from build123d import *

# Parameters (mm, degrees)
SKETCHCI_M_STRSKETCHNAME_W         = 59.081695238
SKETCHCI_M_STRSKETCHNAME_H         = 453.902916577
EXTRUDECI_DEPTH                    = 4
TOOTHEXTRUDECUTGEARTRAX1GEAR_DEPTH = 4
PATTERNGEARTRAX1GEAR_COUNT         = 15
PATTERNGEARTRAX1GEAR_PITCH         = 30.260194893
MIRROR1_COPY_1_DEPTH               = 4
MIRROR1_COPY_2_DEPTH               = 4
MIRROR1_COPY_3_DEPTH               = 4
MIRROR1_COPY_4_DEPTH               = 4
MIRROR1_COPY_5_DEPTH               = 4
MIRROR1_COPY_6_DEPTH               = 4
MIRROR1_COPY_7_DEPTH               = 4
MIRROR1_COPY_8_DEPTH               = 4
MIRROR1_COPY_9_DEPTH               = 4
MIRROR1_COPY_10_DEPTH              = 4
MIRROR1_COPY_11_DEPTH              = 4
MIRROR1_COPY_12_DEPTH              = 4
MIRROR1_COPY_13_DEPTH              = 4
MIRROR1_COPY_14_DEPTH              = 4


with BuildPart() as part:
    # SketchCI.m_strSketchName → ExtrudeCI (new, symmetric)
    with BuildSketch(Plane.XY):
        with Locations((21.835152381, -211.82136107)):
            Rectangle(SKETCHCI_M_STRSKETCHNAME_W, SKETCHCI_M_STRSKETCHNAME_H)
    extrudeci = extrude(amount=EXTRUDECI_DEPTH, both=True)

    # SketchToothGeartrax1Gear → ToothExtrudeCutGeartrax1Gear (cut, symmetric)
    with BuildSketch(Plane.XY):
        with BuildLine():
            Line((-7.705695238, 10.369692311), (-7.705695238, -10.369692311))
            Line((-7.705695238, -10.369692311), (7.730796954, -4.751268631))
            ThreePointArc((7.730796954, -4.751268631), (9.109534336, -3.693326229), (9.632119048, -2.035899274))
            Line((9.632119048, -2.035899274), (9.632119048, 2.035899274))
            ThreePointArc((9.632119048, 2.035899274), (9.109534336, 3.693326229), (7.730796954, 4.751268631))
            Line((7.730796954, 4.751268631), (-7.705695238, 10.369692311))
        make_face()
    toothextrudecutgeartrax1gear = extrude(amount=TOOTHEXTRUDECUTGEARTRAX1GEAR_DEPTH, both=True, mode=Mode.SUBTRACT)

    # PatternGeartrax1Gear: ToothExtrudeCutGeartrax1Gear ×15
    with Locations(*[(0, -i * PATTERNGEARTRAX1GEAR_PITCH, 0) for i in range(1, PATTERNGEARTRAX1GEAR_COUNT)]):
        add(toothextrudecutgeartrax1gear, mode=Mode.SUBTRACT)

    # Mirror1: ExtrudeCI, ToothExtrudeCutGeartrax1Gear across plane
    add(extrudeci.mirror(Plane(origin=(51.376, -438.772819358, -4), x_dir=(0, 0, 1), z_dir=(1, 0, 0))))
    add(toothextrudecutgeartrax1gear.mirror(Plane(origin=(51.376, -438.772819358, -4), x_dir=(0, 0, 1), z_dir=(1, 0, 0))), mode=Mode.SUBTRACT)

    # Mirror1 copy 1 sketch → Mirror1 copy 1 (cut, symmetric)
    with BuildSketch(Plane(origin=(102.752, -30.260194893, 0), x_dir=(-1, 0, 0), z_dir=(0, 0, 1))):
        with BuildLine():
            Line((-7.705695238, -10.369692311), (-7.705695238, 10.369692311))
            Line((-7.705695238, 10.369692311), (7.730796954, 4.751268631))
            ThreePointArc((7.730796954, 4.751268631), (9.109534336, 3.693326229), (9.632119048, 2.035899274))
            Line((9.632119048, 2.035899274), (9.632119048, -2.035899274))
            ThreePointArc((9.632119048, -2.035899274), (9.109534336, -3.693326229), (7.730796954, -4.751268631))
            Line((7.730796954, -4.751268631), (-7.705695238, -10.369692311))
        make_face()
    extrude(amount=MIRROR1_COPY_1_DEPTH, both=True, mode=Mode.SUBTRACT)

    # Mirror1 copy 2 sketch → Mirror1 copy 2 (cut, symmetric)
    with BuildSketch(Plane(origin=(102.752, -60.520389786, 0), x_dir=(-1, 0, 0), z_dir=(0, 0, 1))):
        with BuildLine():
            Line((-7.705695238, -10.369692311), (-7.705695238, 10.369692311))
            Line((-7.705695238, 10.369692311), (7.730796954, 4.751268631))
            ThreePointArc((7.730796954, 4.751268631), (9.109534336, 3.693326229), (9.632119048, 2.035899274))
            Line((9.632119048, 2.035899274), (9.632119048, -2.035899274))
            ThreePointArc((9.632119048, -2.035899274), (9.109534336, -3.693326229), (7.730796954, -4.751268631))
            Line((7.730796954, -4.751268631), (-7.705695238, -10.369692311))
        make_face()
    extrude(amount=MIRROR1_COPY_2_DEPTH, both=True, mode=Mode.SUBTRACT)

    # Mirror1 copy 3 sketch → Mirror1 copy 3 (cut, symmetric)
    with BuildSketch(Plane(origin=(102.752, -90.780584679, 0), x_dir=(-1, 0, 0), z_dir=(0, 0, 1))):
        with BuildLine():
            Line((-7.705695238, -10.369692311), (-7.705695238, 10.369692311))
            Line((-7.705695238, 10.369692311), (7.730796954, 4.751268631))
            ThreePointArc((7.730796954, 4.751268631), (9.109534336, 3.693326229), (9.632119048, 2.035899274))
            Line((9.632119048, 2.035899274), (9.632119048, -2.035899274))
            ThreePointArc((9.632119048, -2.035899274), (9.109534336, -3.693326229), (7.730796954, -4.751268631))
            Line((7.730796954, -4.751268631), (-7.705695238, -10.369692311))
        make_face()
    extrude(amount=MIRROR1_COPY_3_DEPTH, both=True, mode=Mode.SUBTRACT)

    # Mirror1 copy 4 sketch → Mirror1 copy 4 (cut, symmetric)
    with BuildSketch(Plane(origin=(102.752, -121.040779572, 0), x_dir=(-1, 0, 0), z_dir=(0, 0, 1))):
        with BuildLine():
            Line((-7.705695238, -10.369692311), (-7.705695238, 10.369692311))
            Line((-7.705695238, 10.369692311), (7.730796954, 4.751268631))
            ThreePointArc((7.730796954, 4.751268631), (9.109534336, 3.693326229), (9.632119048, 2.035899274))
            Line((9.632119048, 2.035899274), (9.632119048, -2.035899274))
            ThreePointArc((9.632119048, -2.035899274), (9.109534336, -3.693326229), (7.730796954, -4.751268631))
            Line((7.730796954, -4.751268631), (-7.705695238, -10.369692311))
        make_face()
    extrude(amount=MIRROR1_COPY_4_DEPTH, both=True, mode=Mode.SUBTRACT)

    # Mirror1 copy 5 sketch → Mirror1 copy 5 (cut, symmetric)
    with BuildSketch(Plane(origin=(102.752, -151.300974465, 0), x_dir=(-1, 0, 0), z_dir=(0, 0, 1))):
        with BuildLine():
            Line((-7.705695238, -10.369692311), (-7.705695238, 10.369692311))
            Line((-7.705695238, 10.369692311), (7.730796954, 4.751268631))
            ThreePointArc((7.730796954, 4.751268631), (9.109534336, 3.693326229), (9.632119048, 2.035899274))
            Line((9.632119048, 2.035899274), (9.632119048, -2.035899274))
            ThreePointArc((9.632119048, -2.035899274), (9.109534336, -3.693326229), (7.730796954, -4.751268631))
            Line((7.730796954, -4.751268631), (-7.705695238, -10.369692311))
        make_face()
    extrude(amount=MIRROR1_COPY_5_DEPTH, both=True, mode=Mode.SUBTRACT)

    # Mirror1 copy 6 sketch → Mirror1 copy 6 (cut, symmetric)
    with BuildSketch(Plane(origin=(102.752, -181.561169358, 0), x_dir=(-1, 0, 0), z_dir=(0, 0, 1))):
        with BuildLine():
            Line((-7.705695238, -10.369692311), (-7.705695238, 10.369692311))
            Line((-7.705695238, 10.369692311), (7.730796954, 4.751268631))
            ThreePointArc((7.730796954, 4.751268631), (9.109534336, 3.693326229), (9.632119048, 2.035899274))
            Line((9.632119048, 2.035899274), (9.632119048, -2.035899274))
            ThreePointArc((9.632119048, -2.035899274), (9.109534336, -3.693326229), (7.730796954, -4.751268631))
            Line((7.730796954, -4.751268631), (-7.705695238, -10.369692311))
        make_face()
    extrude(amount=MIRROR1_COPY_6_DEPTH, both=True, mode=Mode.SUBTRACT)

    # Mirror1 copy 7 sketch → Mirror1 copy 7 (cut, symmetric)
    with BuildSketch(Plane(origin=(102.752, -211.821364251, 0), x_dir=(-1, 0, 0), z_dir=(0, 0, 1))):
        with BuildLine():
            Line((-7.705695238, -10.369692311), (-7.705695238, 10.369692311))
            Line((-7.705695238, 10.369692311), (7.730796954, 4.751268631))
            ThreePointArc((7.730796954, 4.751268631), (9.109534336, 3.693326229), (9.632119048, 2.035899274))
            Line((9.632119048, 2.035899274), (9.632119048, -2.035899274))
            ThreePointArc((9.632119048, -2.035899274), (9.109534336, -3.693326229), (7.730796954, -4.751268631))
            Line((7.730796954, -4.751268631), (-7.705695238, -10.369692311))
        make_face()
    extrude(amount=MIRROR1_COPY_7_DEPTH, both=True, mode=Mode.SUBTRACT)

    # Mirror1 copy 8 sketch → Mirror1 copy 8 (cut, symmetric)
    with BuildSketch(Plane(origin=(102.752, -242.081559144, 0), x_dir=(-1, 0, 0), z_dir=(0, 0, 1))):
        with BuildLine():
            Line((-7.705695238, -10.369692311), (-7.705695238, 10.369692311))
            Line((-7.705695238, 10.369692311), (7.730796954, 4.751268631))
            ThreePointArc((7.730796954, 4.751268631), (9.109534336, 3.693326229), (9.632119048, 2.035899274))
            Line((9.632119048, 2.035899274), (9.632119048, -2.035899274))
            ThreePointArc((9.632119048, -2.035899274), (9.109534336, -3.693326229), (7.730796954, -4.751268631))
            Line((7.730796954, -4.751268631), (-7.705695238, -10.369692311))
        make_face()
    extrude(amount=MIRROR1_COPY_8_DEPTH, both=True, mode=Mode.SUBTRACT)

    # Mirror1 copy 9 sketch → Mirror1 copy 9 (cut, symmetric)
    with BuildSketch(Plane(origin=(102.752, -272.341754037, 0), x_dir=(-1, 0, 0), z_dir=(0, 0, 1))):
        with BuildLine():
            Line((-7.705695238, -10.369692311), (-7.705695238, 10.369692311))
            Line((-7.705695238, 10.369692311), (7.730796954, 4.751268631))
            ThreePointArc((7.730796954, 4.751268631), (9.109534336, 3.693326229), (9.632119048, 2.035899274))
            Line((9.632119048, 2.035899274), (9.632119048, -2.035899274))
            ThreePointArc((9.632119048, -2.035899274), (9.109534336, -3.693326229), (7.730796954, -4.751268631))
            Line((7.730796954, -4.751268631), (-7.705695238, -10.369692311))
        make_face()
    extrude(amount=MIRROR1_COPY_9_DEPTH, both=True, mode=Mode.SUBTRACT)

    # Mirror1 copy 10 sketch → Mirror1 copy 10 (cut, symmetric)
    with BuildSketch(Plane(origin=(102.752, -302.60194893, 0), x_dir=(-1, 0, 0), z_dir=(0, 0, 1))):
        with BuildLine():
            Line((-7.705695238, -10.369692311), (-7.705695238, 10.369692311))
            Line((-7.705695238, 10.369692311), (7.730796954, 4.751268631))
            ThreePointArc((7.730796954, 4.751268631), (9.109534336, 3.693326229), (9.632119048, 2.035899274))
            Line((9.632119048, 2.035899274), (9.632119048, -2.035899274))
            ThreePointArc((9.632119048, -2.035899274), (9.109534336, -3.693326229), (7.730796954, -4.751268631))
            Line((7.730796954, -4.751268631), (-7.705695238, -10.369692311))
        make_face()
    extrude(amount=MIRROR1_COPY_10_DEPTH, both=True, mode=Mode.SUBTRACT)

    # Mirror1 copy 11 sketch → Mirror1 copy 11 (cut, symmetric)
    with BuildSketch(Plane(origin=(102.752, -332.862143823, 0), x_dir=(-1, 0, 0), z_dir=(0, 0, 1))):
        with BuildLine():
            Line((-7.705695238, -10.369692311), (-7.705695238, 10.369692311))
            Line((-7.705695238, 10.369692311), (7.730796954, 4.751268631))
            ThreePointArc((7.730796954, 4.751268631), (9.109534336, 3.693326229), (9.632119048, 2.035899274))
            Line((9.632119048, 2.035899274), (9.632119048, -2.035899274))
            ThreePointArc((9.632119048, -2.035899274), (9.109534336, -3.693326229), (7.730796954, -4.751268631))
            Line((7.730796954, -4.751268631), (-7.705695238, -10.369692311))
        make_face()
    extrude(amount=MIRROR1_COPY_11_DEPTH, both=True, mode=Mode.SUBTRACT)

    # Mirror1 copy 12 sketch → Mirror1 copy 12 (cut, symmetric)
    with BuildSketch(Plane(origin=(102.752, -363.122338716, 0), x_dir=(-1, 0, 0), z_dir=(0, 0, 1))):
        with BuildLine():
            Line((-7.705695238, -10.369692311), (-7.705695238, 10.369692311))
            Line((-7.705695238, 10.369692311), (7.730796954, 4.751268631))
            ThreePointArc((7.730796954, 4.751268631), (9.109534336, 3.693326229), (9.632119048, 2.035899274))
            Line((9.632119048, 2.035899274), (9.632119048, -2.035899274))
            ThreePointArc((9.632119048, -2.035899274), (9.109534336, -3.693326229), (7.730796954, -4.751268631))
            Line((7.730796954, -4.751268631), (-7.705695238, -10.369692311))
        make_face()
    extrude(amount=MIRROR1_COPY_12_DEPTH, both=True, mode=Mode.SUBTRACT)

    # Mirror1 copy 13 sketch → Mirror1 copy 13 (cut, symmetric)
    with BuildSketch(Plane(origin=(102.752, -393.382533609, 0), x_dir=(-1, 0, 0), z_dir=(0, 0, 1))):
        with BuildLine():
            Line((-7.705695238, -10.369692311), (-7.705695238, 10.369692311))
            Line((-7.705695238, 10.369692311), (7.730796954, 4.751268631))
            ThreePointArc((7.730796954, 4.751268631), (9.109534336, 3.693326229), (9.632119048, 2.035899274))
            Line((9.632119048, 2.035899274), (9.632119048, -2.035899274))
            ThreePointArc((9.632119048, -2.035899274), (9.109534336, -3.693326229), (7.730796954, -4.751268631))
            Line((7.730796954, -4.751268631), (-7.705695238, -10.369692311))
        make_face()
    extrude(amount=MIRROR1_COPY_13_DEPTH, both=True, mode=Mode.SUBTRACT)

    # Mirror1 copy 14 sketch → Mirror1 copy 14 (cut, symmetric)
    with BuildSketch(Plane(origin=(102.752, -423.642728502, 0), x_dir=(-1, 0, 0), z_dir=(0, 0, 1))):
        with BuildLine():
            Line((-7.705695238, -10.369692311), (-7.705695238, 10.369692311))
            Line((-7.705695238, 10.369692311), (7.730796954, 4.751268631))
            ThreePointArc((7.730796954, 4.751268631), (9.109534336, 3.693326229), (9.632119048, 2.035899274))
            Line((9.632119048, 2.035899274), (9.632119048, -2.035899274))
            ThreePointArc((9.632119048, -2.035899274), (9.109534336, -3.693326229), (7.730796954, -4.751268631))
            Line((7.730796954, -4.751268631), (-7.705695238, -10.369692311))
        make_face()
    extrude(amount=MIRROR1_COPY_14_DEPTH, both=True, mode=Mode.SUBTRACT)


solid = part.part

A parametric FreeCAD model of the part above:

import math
import FreeCAD as App
import Part
import Sketcher
Q = App.Units.Quantity


def add_polygon(sketch, points):
    """Adds a closed chain of lines whose ends are joined by coincident constraints."""
    first, n = sketch.GeometryCount, len(points)
    for a, b in zip(points, points[1:] + points[:1]):
        sketch.addGeometry(Part.LineSegment(App.Vector(*a, 0), App.Vector(*b, 0)), False)
    for i in range(n):
        sketch.addConstraint(Sketcher.Constraint("Coincident", first + i, 2, first + (i + 1) % n, 1))

doc = App.newDocument("Part")
body = doc.addObject("PartDesign::Body", "Body")

sketch1 = body.newObject("Sketcher::SketchObject", "Sketch")
sketch1.AttachmentSupport = (doc.getObject("XY_Plane"), [""])
sketch1.MapMode = "FlatFace"
add_polygon(sketch1, [(-7.705695, 15.130097), (-7.705695, -438.772819), (51.376, -438.772819), (51.376, 15.130097)])
sketch1.addConstraint([
    Sketcher.Constraint("Vertical", 0),
    Sketcher.Constraint("Horizontal", 1),
    Sketcher.Constraint("Vertical", 2),
    Sketcher.Constraint("Horizontal", 3),
    Sketcher.Constraint("DistanceX", -1, 1, 1, 2, Q("51.376 mm")),
    Sketcher.Constraint("DistanceX", 1, 1, 1, 2, Q("59.081695 mm")),
    Sketcher.Constraint("DistanceY", 0, 2, 0, 1, Q("453.902917 mm")),
    Sketcher.Constraint("DistanceY", 0, 2, -1, 1, Q("438.772819 mm")),
])
pad1 = body.newObject("PartDesign::Pad", "Pad")
pad1.Profile = sketch1
pad1.Length = 8
pad1.Midplane = True

sketch2 = body.newObject("Sketcher::SketchObject", "Sketch001")
sketch2.AttachmentSupport = (doc.getObject("XY_Plane"), [""])
sketch2.MapMode = "FlatFace"
sketch2.addGeometry([
    Part.LineSegment(App.Vector(-7.705695, 10.369692, 0), App.Vector(-7.705695, -10.369692, 0)),
    Part.LineSegment(App.Vector(-7.705695, -10.369692, 0), App.Vector(7.730797, -4.751269, 0)),
    Part.ArcOfCircle(Part.Circle(App.Vector(6.742483, -2.035899, 0), App.Vector(0, 0, 1), 2.889636), math.radians(-70), math.radians(0)),
    Part.LineSegment(App.Vector(9.632119, -2.035899, 0), App.Vector(9.632119, 2.035899, 0)),
    Part.ArcOfCircle(Part.Circle(App.Vector(6.742483, 2.035899, 0), App.Vector(0, 0, 1), 2.889636), math.radians(0), math.radians(70)),
    Part.LineSegment(App.Vector(7.730797, 4.751269, 0), App.Vector(-7.705695, 10.369692, 0)),
], False)
sketch2.addConstraint([
    Sketcher.Constraint("Coincident", 0, 2, 1, 1),
    Sketcher.Constraint("Tangent", 1, 2, 2, 1),
    Sketcher.Constraint("Tangent", 2, 2, 3, 1),
    Sketcher.Constraint("Tangent", 3, 2, 4, 1),
    Sketcher.Constraint("Tangent", 4, 2, 5, 1),
    Sketcher.Constraint("Coincident", 5, 2, 0, 1),
    Sketcher.Constraint("Vertical", 0),
    Sketcher.Constraint("Vertical", 3),
    Sketcher.Constraint("Equal", 2, 4),
    Sketcher.Constraint("Symmetric", 1, 2, 4, 2, -1),
    Sketcher.Constraint("Angle", 1, Q("20 deg")),
    Sketcher.Constraint("DistanceY", 3, 1, 3, 2, Q("4.071799 mm")),
    Sketcher.Constraint("Radius", 2, Q("2.889636 mm")),
    Sketcher.Constraint("Distance", 1, Q("16.427172 mm")),
    Sketcher.Constraint("DistanceX", -1, 1, 2, 2, Q("9.632119 mm")),
])
pocket1 = body.newObject("PartDesign::Pocket", "Pocket")
pocket1.Profile = sketch2
pocket1.Length = 8
pocket1.Midplane = True
doc.recompute()

linearpattern = body.newObject("PartDesign::LinearPattern", "LinearPattern")
linearpattern.Originals = [pocket1]
linearpattern.Direction = (doc.getObject("Y_Axis"), [""])
linearpattern.Mode = "offset"
linearpattern.Offset = 30.260195
linearpattern.Occurrences = 15
linearpattern.Reversed = True
body.Tip = linearpattern
doc.recompute()

datumplane = body.newObject("PartDesign::Plane", "DatumPlane")
datumplane.AttachmentSupport = (doc.getObject("YZ_Plane"), [""])
datumplane.MapMode = "FlatFace"
datumplane.AttachmentOffset = App.Placement(App.Vector(0, 0, 51.376), App.Rotation())
mirrored = body.newObject("PartDesign::Mirrored", "Mirrored")
mirrored.Originals = [pad1, pocket1]
mirrored.MirrorPlane = (datumplane, [""])
body.Tip = mirrored

sketch3 = body.newObject("Sketcher::SketchObject", "Sketch002")
sketch3.AttachmentSupport = (doc.getObject("XY_Plane"), [""])
sketch3.MapMode = "FlatFace"
sketch3.addGeometry([
    Part.LineSegment(App.Vector(110.457695, -40.629887, 0), App.Vector(110.457695, -19.890503, 0)),
    Part.LineSegment(App.Vector(110.457695, -19.890503, 0), App.Vector(95.021203, -25.508926, 0)),
    Part.ArcOfCircle(Part.Circle(App.Vector(96.009517, -28.224296, 0), App.Vector(0, 0, 1), 2.889636), math.radians(110), math.radians(180)),
    Part.LineSegment(App.Vector(93.119881, -28.224296, 0), App.Vector(93.119881, -32.296094, 0)),
    Part.ArcOfCircle(Part.Circle(App.Vector(96.009517, -32.296094, 0), App.Vector(0, 0, 1), 2.889636), math.radians(-180), math.radians(-110)),
    Part.LineSegment(App.Vector(95.021203, -35.011464, 0), App.Vector(110.457695, -40.629887, 0)),
], False)
sketch3.addConstraint([
    Sketcher.Constraint("Coincident", 0, 2, 1, 1),
    Sketcher.Constraint("Tangent", 1, 2, 2, 1),
    Sketcher.Constraint("Tangent", 2, 2, 3, 1),
    Sketcher.Constraint("Tangent", 3, 2, 4, 1),
    Sketcher.Constraint("Tangent", 4, 2, 5, 1),
    Sketcher.Constraint("Coincident", 5, 2, 0, 1),
    Sketcher.Constraint("Vertical", 0),
    Sketcher.Constraint("Vertical", 3),
    Sketcher.Constraint("Equal", 2, 4),
    Sketcher.Constraint("Vertical", 1, 2, 4, 2),
    Sketcher.Constraint("Angle", 1, Q("-160 deg")),
    Sketcher.Constraint("DistanceY", 3, 2, 3, 1, Q("4.071799 mm")),
    Sketcher.Constraint("Radius", 2, Q("2.889636 mm")),
    Sketcher.Constraint("Distance", 1, Q("16.427172 mm")),
    Sketcher.Constraint("DistanceX", -1, 1, 2, 2, Q("93.119881 mm")),
    Sketcher.Constraint("DistanceY", 2, 3, -1, 1, Q("28.224296 mm")),
])
pocket2 = body.newObject("PartDesign::Pocket", "Pocket001")
pocket2.Profile = sketch3
pocket2.Length = 8
pocket2.Midplane = True

sketch4 = body.newObject("Sketcher::SketchObject", "Sketch003")
sketch4.AttachmentSupport = (doc.getObject("XY_Plane"), [""])
sketch4.MapMode = "FlatFace"
sketch4.addGeometry([
    Part.LineSegment(App.Vector(110.457695, -70.890082, 0), App.Vector(110.457695, -50.150697, 0)),
    Part.LineSegment(App.Vector(110.457695, -50.150697, 0), App.Vector(95.021203, -55.769121, 0)),
    Part.ArcOfCircle(Part.Circle(App.Vector(96.009517, -58.484491, 0), App.Vector(0, 0, 1), 2.889636), math.radians(110), math.radians(180)),
    Part.LineSegment(App.Vector(93.119881, -58.484491, 0), App.Vector(93.119881, -62.556289, 0)),
    Part.ArcOfCircle(Part.Circle(App.Vector(96.009517, -62.556289, 0), App.Vector(0, 0, 1), 2.889636), math.radians(-180), math.radians(-110)),
    Part.LineSegment(App.Vector(95.021203, -65.271658, 0), App.Vector(110.457695, -70.890082, 0)),
], False)
sketch4.addConstraint([
    Sketcher.Constraint("Coincident", 0, 2, 1, 1),
    Sketcher.Constraint("Tangent", 1, 2, 2, 1),
    Sketcher.Constraint("Tangent", 2, 2, 3, 1),
    Sketcher.Constraint("Tangent", 3, 2, 4, 1),
    Sketcher.Constraint("Tangent", 4, 2, 5, 1),
    Sketcher.Constraint("Coincident", 5, 2, 0, 1),
    Sketcher.Constraint("Vertical", 0),
    Sketcher.Constraint("Vertical", 3),
    Sketcher.Constraint("Equal", 2, 4),
    Sketcher.Constraint("Vertical", 1, 2, 4, 2),
    Sketcher.Constraint("Angle", 1, Q("-160 deg")),
    Sketcher.Constraint("DistanceY", 3, 2, 3, 1, Q("4.071799 mm")),
    Sketcher.Constraint("Radius", 2, Q("2.889636 mm")),
    Sketcher.Constraint("Distance", 1, Q("16.427172 mm")),
    Sketcher.Constraint("DistanceY", 2, 3, -1, 1, Q("58.484491 mm")),
    Sketcher.Constraint("DistanceX", -1, 1, 2, 2, Q("93.119881 mm")),
])
pocket3 = body.newObject("PartDesign::Pocket", "Pocket002")
pocket3.Profile = sketch4
pocket3.Length = 8
pocket3.Midplane = True

sketch5 = body.newObject("Sketcher::SketchObject", "Sketch004")
sketch5.AttachmentSupport = (doc.getObject("XY_Plane"), [""])
sketch5.MapMode = "FlatFace"
sketch5.addGeometry([
    Part.LineSegment(App.Vector(110.457695, -101.150277, 0), App.Vector(110.457695, -80.410892, 0)),
    Part.LineSegment(App.Vector(110.457695, -80.410892, 0), App.Vector(95.021203, -86.029316, 0)),
    Part.ArcOfCircle(Part.Circle(App.Vector(96.009517, -88.744685, 0), App.Vector(0, 0, 1), 2.889636), math.radians(110), math.radians(180)),
    Part.LineSegment(App.Vector(93.119881, -88.744685, 0), App.Vector(93.119881, -92.816484, 0)),
    Part.ArcOfCircle(Part.Circle(App.Vector(96.009517, -92.816484, 0), App.Vector(0, 0, 1), 2.889636), math.radians(-180), math.radians(-110)),
    Part.LineSegment(App.Vector(95.021203, -95.531853, 0), App.Vector(110.457695, -101.150277, 0)),
], False)
sketch5.addConstraint([
    Sketcher.Constraint("Coincident", 0, 2, 1, 1),
    Sketcher.Constraint("Tangent", 1, 2, 2, 1),
    Sketcher.Constraint("Tangent", 2, 2, 3, 1),
    Sketcher.Constraint("Tangent", 3, 2, 4, 1),
    Sketcher.Constraint("Tangent", 4, 2, 5, 1),
    Sketcher.Constraint("Coincident", 5, 2, 0, 1),
    Sketcher.Constraint("Vertical", 0),
    Sketcher.Constraint("Vertical", 3),
    Sketcher.Constraint("Equal", 2, 4),
    Sketcher.Constraint("Vertical", 1, 2, 4, 2),
    Sketcher.Constraint("Angle", 1, Q("-160 deg")),
    Sketcher.Constraint("DistanceY", 3, 2, 3, 1, Q("4.071799 mm")),
    Sketcher.Constraint("Radius", 2, Q("2.889636 mm")),
    Sketcher.Constraint("Distance", 1, Q("16.427172 mm")),
    Sketcher.Constraint("DistanceX", -1, 1, 2, 2, Q("93.119881 mm")),
    Sketcher.Constraint("DistanceY", 2, 3, -1, 1, Q("88.744685 mm")),
])
pocket4 = body.newObject("PartDesign::Pocket", "Pocket003")
pocket4.Profile = sketch5
pocket4.Length = 8
pocket4.Midplane = True

sketch6 = body.newObject("Sketcher::SketchObject", "Sketch005")
sketch6.AttachmentSupport = (doc.getObject("XY_Plane"), [""])
sketch6.MapMode = "FlatFace"
sketch6.addGeometry([
    Part.LineSegment(App.Vector(110.457695, -131.410472, 0), App.Vector(110.457695, -110.671087, 0)),
    Part.LineSegment(App.Vector(110.457695, -110.671087, 0), App.Vector(95.021203, -116.289511, 0)),
    Part.ArcOfCircle(Part.Circle(App.Vector(96.009517, -119.00488, 0), App.Vector(0, 0, 1), 2.889636), math.radians(110), math.radians(180)),
    Part.LineSegment(App.Vector(93.119881, -119.00488, 0), App.Vector(93.119881, -123.076679, 0)),
    Part.ArcOfCircle(Part.Circle(App.Vector(96.009517, -123.076679, 0), App.Vector(0, 0, 1), 2.889636), math.radians(-180), math.radians(-110)),
    Part.LineSegment(App.Vector(95.021203, -125.792048, 0), App.Vector(110.457695, -131.410472, 0)),
], False)
sketch6.addConstraint([
    Sketcher.Constraint("Coincident", 0, 2, 1, 1),
    Sketcher.Constraint("Tangent", 1, 2, 2, 1),
    Sketcher.Constraint("Tangent", 2, 2, 3, 1),
    Sketcher.Constraint("Tangent", 3, 2, 4, 1),
    Sketcher.Constraint("Tangent", 4, 2, 5, 1),
    Sketcher.Constraint("Coincident", 5, 2, 0, 1),
    Sketcher.Constraint("Vertical", 0),
    Sketcher.Constraint("Vertical", 3),
    Sketcher.Constraint("Equal", 2, 4),
    Sketcher.Constraint("Vertical", 1, 2, 4, 2),
    Sketcher.Constraint("Angle", 1, Q("-160 deg")),
    Sketcher.Constraint("DistanceY", 3, 2, 3, 1, Q("4.071799 mm")),
    Sketcher.Constraint("Radius", 2, Q("2.889636 mm")),
    Sketcher.Constraint("Distance", 1, Q("16.427172 mm")),
    Sketcher.Constraint("DistanceY", 2, 3, -1, 1, Q("119.00488 mm")),
    Sketcher.Constraint("DistanceX", -1, 1, 2, 2, Q("93.119881 mm")),
])
pocket5 = body.newObject("PartDesign::Pocket", "Pocket004")
pocket5.Profile = sketch6
pocket5.Length = 8
pocket5.Midplane = True

sketch7 = body.newObject("Sketcher::SketchObject", "Sketch006")
sketch7.AttachmentSupport = (doc.getObject("XY_Plane"), [""])
sketch7.MapMode = "FlatFace"
sketch7.addGeometry([
    Part.LineSegment(App.Vector(110.457695, -161.670667, 0), App.Vector(110.457695, -140.931282, 0)),
    Part.LineSegment(App.Vector(110.457695, -140.931282, 0), App.Vector(95.021203, -146.549706, 0)),
    Part.ArcOfCircle(Part.Circle(App.Vector(96.009517, -149.265075, 0), App.Vector(0, 0, 1), 2.889636), math.radians(110), math.radians(180)),
    Part.LineSegment(App.Vector(93.119881, -149.265075, 0), App.Vector(93.119881, -153.336874, 0)),
    Part.ArcOfCircle(Part.Circle(App.Vector(96.009517, -153.336874, 0), App.Vector(0, 0, 1), 2.889636), math.radians(-180), math.radians(-110)),
    Part.LineSegment(App.Vector(95.021203, -156.052243, 0), App.Vector(110.457695, -161.670667, 0)),
], False)
sketch7.addConstraint([
    Sketcher.Constraint("Coincident", 0, 2, 1, 1),
    Sketcher.Constraint("Tangent", 1, 2, 2, 1),
    Sketcher.Constraint("Tangent", 2, 2, 3, 1),
    Sketcher.Constraint("Tangent", 3, 2, 4, 1),
    Sketcher.Constraint("Tangent", 4, 2, 5, 1),
    Sketcher.Constraint("Coincident", 5, 2, 0, 1),
    Sketcher.Constraint("Vertical", 0),
    Sketcher.Constraint("Vertical", 3),
    Sketcher.Constraint("Equal", 2, 4),
    Sketcher.Constraint("Vertical", 1, 2, 4, 2),
    Sketcher.Constraint("Angle", 1, Q("-160 deg")),
    Sketcher.Constraint("DistanceY", 3, 2, 3, 1, Q("4.071799 mm")),
    Sketcher.Constraint("Radius", 2, Q("2.889636 mm")),
    Sketcher.Constraint("Distance", 1, Q("16.427172 mm")),
    Sketcher.Constraint("DistanceX", -1, 1, 2, 2, Q("93.119881 mm")),
    Sketcher.Constraint("DistanceY", 2, 3, -1, 1, Q("149.265075 mm")),
])
pocket6 = body.newObject("PartDesign::Pocket", "Pocket005")
pocket6.Profile = sketch7
pocket6.Length = 8
pocket6.Midplane = True

sketch8 = body.newObject("Sketcher::SketchObject", "Sketch007")
sketch8.AttachmentSupport = (doc.getObject("XY_Plane"), [""])
sketch8.MapMode = "FlatFace"
sketch8.addGeometry([
    Part.LineSegment(App.Vector(110.457695, -191.930862, 0), App.Vector(110.457695, -171.191477, 0)),
    Part.LineSegment(App.Vector(110.457695, -171.191477, 0), App.Vector(95.021203, -176.809901, 0)),
    Part.ArcOfCircle(Part.Circle(App.Vector(96.009517, -179.52527, 0), App.Vector(0, 0, 1), 2.889636), math.radians(110), math.radians(180)),
    Part.LineSegment(App.Vector(93.119881, -179.52527, 0), App.Vector(93.119881, -183.597069, 0)),
    Part.ArcOfCircle(Part.Circle(App.Vector(96.009517, -183.597069, 0), App.Vector(0, 0, 1), 2.889636), math.radians(-180), math.radians(-110)),
    Part.LineSegment(App.Vector(95.021203, -186.312438, 0), App.Vector(110.457695, -191.930862, 0)),
], False)
sketch8.addConstraint([
    Sketcher.Constraint("Coincident", 0, 2, 1, 1),
    Sketcher.Constraint("Tangent", 1, 2, 2, 1),
    Sketcher.Constraint("Tangent", 2, 2, 3, 1),
    Sketcher.Constraint("Tangent", 3, 2, 4, 1),
    Sketcher.Constraint("Tangent", 4, 2, 5, 1),
    Sketcher.Constraint("Coincident", 5, 2, 0, 1),
    Sketcher.Constraint("Vertical", 0),
    Sketcher.Constraint("Vertical", 3),
    Sketcher.Constraint("Equal", 2, 4),
    Sketcher.Constraint("Vertical", 1, 2, 4, 2),
    Sketcher.Constraint("Angle", 1, Q("-160 deg")),
    Sketcher.Constraint("DistanceY", 3, 2, 3, 1, Q("4.071799 mm")),
    Sketcher.Constraint("Radius", 2, Q("2.889636 mm")),
    Sketcher.Constraint("DistanceY", 1, 2, -1, 1, Q("176.809901 mm")),
    Sketcher.Constraint("Distance", 1, Q("16.427172 mm")),
    Sketcher.Constraint("DistanceX", -1, 1, 2, 2, Q("93.119881 mm")),
])
pocket7 = body.newObject("PartDesign::Pocket", "Pocket006")
pocket7.Profile = sketch8
pocket7.Length = 8
pocket7.Midplane = True

sketch9 = body.newObject("Sketcher::SketchObject", "Sketch008")
sketch9.AttachmentSupport = (doc.getObject("XY_Plane"), [""])
sketch9.MapMode = "FlatFace"
sketch9.addGeometry([
    Part.LineSegment(App.Vector(110.457695, -222.191057, 0), App.Vector(110.457695, -201.451672, 0)),
    Part.LineSegment(App.Vector(110.457695, -201.451672, 0), App.Vector(95.021203, -207.070096, 0)),
    Part.ArcOfCircle(Part.Circle(App.Vector(96.009517, -209.785465, 0), App.Vector(0, 0, 1), 2.889636), math.radians(110), math.radians(180)),
    Part.LineSegment(App.Vector(93.119881, -209.785465, 0), App.Vector(93.119881, -213.857264, 0)),
    Part.ArcOfCircle(Part.Circle(App.Vector(96.009517, -213.857264, 0), App.Vector(0, 0, 1), 2.889636), math.radians(-180), math.radians(-110)),
    Part.LineSegment(App.Vector(95.021203, -216.572633, 0), App.Vector(110.457695, -222.191057, 0)),
], False)
sketch9.addConstraint([
    Sketcher.Constraint("Coincident", 0, 2, 1, 1),
    Sketcher.Constraint("Tangent", 1, 2, 2, 1),
    Sketcher.Constraint("Tangent", 2, 2, 3, 1),
    Sketcher.Constraint("Tangent", 3, 2, 4, 1),
    Sketcher.Constraint("Tangent", 4, 2, 5, 1),
    Sketcher.Constraint("Coincident", 5, 2, 0, 1),
    Sketcher.Constraint("Vertical", 0),
    Sketcher.Constraint("Vertical", 3),
    Sketcher.Constraint("Equal", 2, 4),
    Sketcher.Constraint("Vertical", 1, 2, 4, 2),
    Sketcher.Constraint("Angle", 1, Q("-160 deg")),
    Sketcher.Constraint("DistanceY", 3, 2, 3, 1, Q("4.071799 mm")),
    Sketcher.Constraint("Radius", 2, Q("2.889636 mm")),
    Sketcher.Constraint("Distance", 1, Q("16.427172 mm")),
    Sketcher.Constraint("DistanceY", 0, 2, -1, 1, Q("201.451672 mm")),
    Sketcher.Constraint("DistanceX", -1, 1, 2, 2, Q("93.119881 mm")),
])
pocket8 = body.newObject("PartDesign::Pocket", "Pocket007")
pocket8.Profile = sketch9
pocket8.Length = 8
pocket8.Midplane = True

sketch10 = body.newObject("Sketcher::SketchObject", "Sketch009")
sketch10.AttachmentSupport = (doc.getObject("XY_Plane"), [""])
sketch10.MapMode = "FlatFace"
sketch10.addGeometry([
    Part.LineSegment(App.Vector(110.457695, -252.451251, 0), App.Vector(110.457695, -231.711867, 0)),
    Part.LineSegment(App.Vector(110.457695, -231.711867, 0), App.Vector(95.021203, -237.330291, 0)),
    Part.ArcOfCircle(Part.Circle(App.Vector(96.009517, -240.04566, 0), App.Vector(0, 0, 1), 2.889636), math.radians(110), math.radians(180)),
    Part.LineSegment(App.Vector(93.119881, -240.04566, 0), App.Vector(93.119881, -244.117458, 0)),
    Part.ArcOfCircle(Part.Circle(App.Vector(96.009517, -244.117458, 0), App.Vector(0, 0, 1), 2.889636), math.radians(-180), math.radians(-110)),
    Part.LineSegment(App.Vector(95.021203, -246.832828, 0), App.Vector(110.457695, -252.451251, 0)),
], False)
sketch10.addConstraint([
    Sketcher.Constraint("Coincident", 0, 2, 1, 1),
    Sketcher.Constraint("Tangent", 1, 2, 2, 1),
    Sketcher.Constraint("Tangent", 2, 2, 3, 1),
    Sketcher.Constraint("Tangent", 3, 2, 4, 1),
    Sketcher.Constraint("Tangent", 4, 2, 5, 1),
    Sketcher.Constraint("Coincident", 5, 2, 0, 1),
    Sketcher.Constraint("Vertical", 0),
    Sketcher.Constraint("Vertical", 3),
    Sketcher.Constraint("Equal", 2, 4),
    Sketcher.Constraint("Vertical", 1, 2, 4, 2),
    Sketcher.Constraint("Angle", 1, Q("-160 deg")),
    Sketcher.Constraint("DistanceY", 3, 2, 3, 1, Q("4.071799 mm")),
    Sketcher.Constraint("Radius", 2, Q("2.889636 mm")),
    Sketcher.Constraint("Distance", 1, Q("16.427172 mm")),
    Sketcher.Constraint("DistanceY", 2, 3, -1, 1, Q("240.04566 mm")),
    Sketcher.Constraint("DistanceX", -1, 1, 2, 2, Q("93.119881 mm")),
])
pocket9 = body.newObject("PartDesign::Pocket", "Pocket008")
pocket9.Profile = sketch10
pocket9.Length = 8
pocket9.Midplane = True

sketch11 = body.newObject("Sketcher::SketchObject", "Sketch010")
sketch11.AttachmentSupport = (doc.getObject("XY_Plane"), [""])
sketch11.MapMode = "FlatFace"
sketch11.addGeometry([
    Part.LineSegment(App.Vector(110.457695, -282.711446, 0), App.Vector(110.457695, -261.972062, 0)),
    Part.LineSegment(App.Vector(110.457695, -261.972062, 0), App.Vector(95.021203, -267.590485, 0)),
    Part.ArcOfCircle(Part.Circle(App.Vector(96.009517, -270.305855, 0), App.Vector(0, 0, 1), 2.889636), math.radians(110), math.radians(180)),
    Part.LineSegment(App.Vector(93.119881, -270.305855, 0), App.Vector(93.119881, -274.377653, 0)),
    Part.ArcOfCircle(Part.Circle(App.Vector(96.009517, -274.377653, 0), App.Vector(0, 0, 1), 2.889636), math.radians(-180), math.radians(-110)),
    Part.LineSegment(App.Vector(95.021203, -277.093023, 0), App.Vector(110.457695, -282.711446, 0)),
], False)
sketch11.addConstraint([
    Sketcher.Constraint("Coincident", 0, 2, 1, 1),
    Sketcher.Constraint("Tangent", 1, 2, 2, 1),
    Sketcher.Constraint("Tangent", 2, 2, 3, 1),
    Sketcher.Constraint("Tangent", 3, 2, 4, 1),
    Sketcher.Constraint("Tangent", 4, 2, 5, 1),
    Sketcher.Constraint("Coincident", 5, 2, 0, 1),
    Sketcher.Constraint("Vertical", 0),
    Sketcher.Constraint("Vertical", 3),
    Sketcher.Constraint("Equal", 2, 4),
    Sketcher.Constraint("Vertical", 1, 2, 4, 2),
    Sketcher.Constraint("Angle", 1, Q("-160 deg")),
    Sketcher.Constraint("DistanceY", 3, 2, 3, 1, Q("4.071799 mm")),
    Sketcher.Constraint("Radius", 2, Q("2.889636 mm")),
    Sketcher.Constraint("Distance", 1, Q("16.427172 mm")),
    Sketcher.Constraint("DistanceY", 0, 2, -1, 1, Q("261.972062 mm")),
    Sketcher.Constraint("DistanceX", -1, 1, 2, 2, Q("93.119881 mm")),
])
pocket10 = body.newObject("PartDesign::Pocket", "Pocket009")
pocket10.Profile = sketch11
pocket10.Length = 8
pocket10.Midplane = True

sketch12 = body.newObject("Sketcher::SketchObject", "Sketch011")
sketch12.AttachmentSupport = (doc.getObject("XY_Plane"), [""])
sketch12.MapMode = "FlatFace"
sketch12.addGeometry([
    Part.LineSegment(App.Vector(110.457695, -312.971641, 0), App.Vector(110.457695, -292.232257, 0)),
    Part.LineSegment(App.Vector(110.457695, -292.232257, 0), App.Vector(95.021203, -297.85068, 0)),
    Part.ArcOfCircle(Part.Circle(App.Vector(96.009517, -300.56605, 0), App.Vector(0, 0, 1), 2.889636), math.radians(110), math.radians(180)),
    Part.LineSegment(App.Vector(93.119881, -300.56605, 0), App.Vector(93.119881, -304.637848, 0)),
    Part.ArcOfCircle(Part.Circle(App.Vector(96.009517, -304.637848, 0), App.Vector(0, 0, 1), 2.889636), math.radians(-180), math.radians(-110)),
    Part.LineSegment(App.Vector(95.021203, -307.353218, 0), App.Vector(110.457695, -312.971641, 0)),
], False)
sketch12.addConstraint([
    Sketcher.Constraint("Coincident", 0, 2, 1, 1),
    Sketcher.Constraint("Tangent", 1, 2, 2, 1),
    Sketcher.Constraint("Tangent", 2, 2, 3, 1),
    Sketcher.Constraint("Tangent", 3, 2, 4, 1),
    Sketcher.Constraint("Tangent", 4, 2, 5, 1),
    Sketcher.Constraint("Coincident", 5, 2, 0, 1),
    Sketcher.Constraint("Vertical", 0),
    Sketcher.Constraint("Vertical", 3),
    Sketcher.Constraint("Equal", 2, 4),
    Sketcher.Constraint("Vertical", 1, 2, 4, 2),
    Sketcher.Constraint("Angle", 1, Q("-160 deg")),
    Sketcher.Constraint("DistanceY", 3, 2, 3, 1, Q("4.071799 mm")),
    Sketcher.Constraint("Radius", 2, Q("2.889636 mm")),
    Sketcher.Constraint("Distance", 1, Q("16.427172 mm")),
    Sketcher.Constraint("DistanceY", 2, 3, -1, 1, Q("300.56605 mm")),
    Sketcher.Constraint("DistanceX", -1, 1, 2, 2, Q("93.119881 mm")),
])
pocket11 = body.newObject("PartDesign::Pocket", "Pocket010")
pocket11.Profile = sketch12
pocket11.Length = 8
pocket11.Midplane = True

sketch13 = body.newObject("Sketcher::SketchObject", "Sketch012")
sketch13.AttachmentSupport = (doc.getObject("XY_Plane"), [""])
sketch13.MapMode = "FlatFace"
sketch13.addGeometry([
    Part.LineSegment(App.Vector(110.457695, -343.231836, 0), App.Vector(110.457695, -322.492452, 0)),
    Part.LineSegment(App.Vector(110.457695, -322.492452, 0), App.Vector(95.021203, -328.110875, 0)),
    Part.ArcOfCircle(Part.Circle(App.Vector(96.009517, -330.826245, 0), App.Vector(0, 0, 1), 2.889636), math.radians(110), math.radians(180)),
    Part.LineSegment(App.Vector(93.119881, -330.826245, 0), App.Vector(93.119881, -334.898043, 0)),
    Part.ArcOfCircle(Part.Circle(App.Vector(96.009517, -334.898043, 0), App.Vector(0, 0, 1), 2.889636), math.radians(-180), math.radians(-110)),
    Part.LineSegment(App.Vector(95.021203, -337.613412, 0), App.Vector(110.457695, -343.231836, 0)),
], False)
sketch13.addConstraint([
    Sketcher.Constraint("Coincident", 0, 2, 1, 1),
    Sketcher.Constraint("Tangent", 1, 2, 2, 1),
    Sketcher.Constraint("Tangent", 2, 2, 3, 1),
    Sketcher.Constraint("Tangent", 3, 2, 4, 1),
    Sketcher.Constraint("Tangent", 4, 2, 5, 1),
    Sketcher.Constraint("Coincident", 5, 2, 0, 1),
    Sketcher.Constraint("Vertical", 0),
    Sketcher.Constraint("Vertical", 3),
    Sketcher.Constraint("Equal", 2, 4),
    Sketcher.Constraint("Vertical", 1, 2, 4, 2),
    Sketcher.Constraint("Angle", 1, Q("-160 deg")),
    Sketcher.Constraint("DistanceY", 3, 2, 3, 1, Q("4.071799 mm")),
    Sketcher.Constraint("Radius", 2, Q("2.889636 mm")),
    Sketcher.Constraint("Distance", 1, Q("16.427172 mm")),
    Sketcher.Constraint("DistanceY", 0, 2, -1, 1, Q("322.492452 mm")),
    Sketcher.Constraint("DistanceX", -1, 1, 2, 2, Q("93.119881 mm")),
])
pocket12 = body.newObject("PartDesign::Pocket", "Pocket011")
pocket12.Profile = sketch13
pocket12.Length = 8
pocket12.Midplane = True

sketch14 = body.newObject("Sketcher::SketchObject", "Sketch013")
sketch14.AttachmentSupport = (doc.getObject("XY_Plane"), [""])
sketch14.MapMode = "FlatFace"
sketch14.addGeometry([
    Part.LineSegment(App.Vector(110.457695, -373.492031, 0), App.Vector(110.457695, -352.752646, 0)),
    Part.LineSegment(App.Vector(110.457695, -352.752646, 0), App.Vector(95.021203, -358.37107, 0)),
    Part.ArcOfCircle(Part.Circle(App.Vector(96.009517, -361.086439, 0), App.Vector(0, 0, 1), 2.889636), math.radians(110), math.radians(180)),
    Part.LineSegment(App.Vector(93.119881, -361.086439, 0), App.Vector(93.119881, -365.158238, 0)),
    Part.ArcOfCircle(Part.Circle(App.Vector(96.009517, -365.158238, 0), App.Vector(0, 0, 1), 2.889636), math.radians(-180), math.radians(-110)),
    Part.LineSegment(App.Vector(95.021203, -367.873607, 0), App.Vector(110.457695, -373.492031, 0)),
], False)
sketch14.addConstraint([
    Sketcher.Constraint("Coincident", 0, 2, 1, 1),
    Sketcher.Constraint("Tangent", 1, 2, 2, 1),
    Sketcher.Constraint("Tangent", 2, 2, 3, 1),
    Sketcher.Constraint("Tangent", 3, 2, 4, 1),
    Sketcher.Constraint("Tangent", 4, 2, 5, 1),
    Sketcher.Constraint("Coincident", 5, 2, 0, 1),
    Sketcher.Constraint("Vertical", 0),
    Sketcher.Constraint("Vertical", 3),
    Sketcher.Constraint("Equal", 2, 4),
    Sketcher.Constraint("Vertical", 1, 2, 4, 2),
    Sketcher.Constraint("Angle", 1, Q("-160 deg")),
    Sketcher.Constraint("DistanceY", 3, 2, 3, 1, Q("4.071799 mm")),
    Sketcher.Constraint("Radius", 2, Q("2.889636 mm")),
    Sketcher.Constraint("Distance", 1, Q("16.427172 mm")),
    Sketcher.Constraint("DistanceY", 2, 3, -1, 1, Q("361.086439 mm")),
    Sketcher.Constraint("DistanceX", -1, 1, 2, 2, Q("93.119881 mm")),
])
pocket13 = body.newObject("PartDesign::Pocket", "Pocket012")
pocket13.Profile = sketch14
pocket13.Length = 8
pocket13.Midplane = True

sketch15 = body.newObject("Sketcher::SketchObject", "Sketch014")
sketch15.AttachmentSupport = (doc.getObject("XY_Plane"), [""])
sketch15.MapMode = "FlatFace"
sketch15.addGeometry([
    Part.LineSegment(App.Vector(110.457695, -403.752226, 0), App.Vector(110.457695, -383.012841, 0)),
    Part.LineSegment(App.Vector(110.457695, -383.012841, 0), App.Vector(95.021203, -388.631265, 0)),
    Part.ArcOfCircle(Part.Circle(App.Vector(96.009517, -391.346634, 0), App.Vector(0, 0, 1), 2.889636), math.radians(110), math.radians(180)),
    Part.LineSegment(App.Vector(93.119881, -391.346634, 0), App.Vector(93.119881, -395.418433, 0)),
    Part.ArcOfCircle(Part.Circle(App.Vector(96.009517, -395.418433, 0), App.Vector(0, 0, 1), 2.889636), math.radians(-180), math.radians(-110)),
    Part.LineSegment(App.Vector(95.021203, -398.133802, 0), App.Vector(110.457695, -403.752226, 0)),
], False)
sketch15.addConstraint([
    Sketcher.Constraint("Coincident", 0, 2, 1, 1),
    Sketcher.Constraint("Tangent", 1, 2, 2, 1),
    Sketcher.Constraint("Tangent", 2, 2, 3, 1),
    Sketcher.Constraint("Tangent", 3, 2, 4, 1),
    Sketcher.Constraint("Tangent", 4, 2, 5, 1),
    Sketcher.Constraint("Coincident", 5, 2, 0, 1),
    Sketcher.Constraint("Vertical", 0),
    Sketcher.Constraint("Vertical", 3),
    Sketcher.Constraint("Equal", 2, 4),
    Sketcher.Constraint("Vertical", 1, 2, 4, 2),
    Sketcher.Constraint("Angle", 1, Q("-160 deg")),
    Sketcher.Constraint("DistanceY", 3, 2, 3, 1, Q("4.071799 mm")),
    Sketcher.Constraint("Radius", 2, Q("2.889636 mm")),
    Sketcher.Constraint("Distance", 1, Q("16.427172 mm")),
    Sketcher.Constraint("DistanceY", 0, 2, -1, 1, Q("383.012841 mm")),
    Sketcher.Constraint("DistanceX", -1, 1, 2, 2, Q("93.119881 mm")),
])
pocket14 = body.newObject("PartDesign::Pocket", "Pocket013")
pocket14.Profile = sketch15
pocket14.Length = 8
pocket14.Midplane = True

sketch16 = body.newObject("Sketcher::SketchObject", "Sketch015")
sketch16.AttachmentSupport = (doc.getObject("XY_Plane"), [""])
sketch16.MapMode = "FlatFace"
sketch16.addGeometry([
    Part.LineSegment(App.Vector(110.457695, -434.012421, 0), App.Vector(110.457695, -413.273036, 0)),
    Part.LineSegment(App.Vector(110.457695, -413.273036, 0), App.Vector(95.021203, -418.89146, 0)),
    Part.ArcOfCircle(Part.Circle(App.Vector(96.009517, -421.606829, 0), App.Vector(0, 0, 1), 2.889636), math.radians(110), math.radians(180)),
    Part.LineSegment(App.Vector(93.119881, -421.606829, 0), App.Vector(93.119881, -425.678628, 0)),
    Part.ArcOfCircle(Part.Circle(App.Vector(96.009517, -425.678628, 0), App.Vector(0, 0, 1), 2.889636), math.radians(-180), math.radians(-110)),
    Part.LineSegment(App.Vector(95.021203, -428.393997, 0), App.Vector(110.457695, -434.012421, 0)),
], False)
sketch16.addConstraint([
    Sketcher.Constraint("Coincident", 0, 2, 1, 1),
    Sketcher.Constraint("Tangent", 1, 2, 2, 1),
    Sketcher.Constraint("Tangent", 2, 2, 3, 1),
    Sketcher.Constraint("Tangent", 3, 2, 4, 1),
    Sketcher.Constraint("Tangent", 4, 2, 5, 1),
    Sketcher.Constraint("Coincident", 5, 2, 0, 1),
    Sketcher.Constraint("Vertical", 0),
    Sketcher.Constraint("Vertical", 3),
    Sketcher.Constraint("Equal", 2, 4),
    Sketcher.Constraint("Vertical", 1, 2, 4, 2),
    Sketcher.Constraint("Angle", 1, Q("-160 deg")),
    Sketcher.Constraint("DistanceY", 3, 2, 3, 1, Q("4.071799 mm")),
    Sketcher.Constraint("Radius", 2, Q("2.889636 mm")),
    Sketcher.Constraint("Distance", 1, Q("16.427172 mm")),
    Sketcher.Constraint("DistanceY", 2, 3, -1, 1, Q("421.606829 mm")),
    Sketcher.Constraint("DistanceX", -1, 1, 2, 2, Q("93.119881 mm")),
])
pocket15 = body.newObject("PartDesign::Pocket", "Pocket014")
pocket15.Profile = sketch16
pocket15.Length = 8
pocket15.Midplane = True

doc.recompute()
